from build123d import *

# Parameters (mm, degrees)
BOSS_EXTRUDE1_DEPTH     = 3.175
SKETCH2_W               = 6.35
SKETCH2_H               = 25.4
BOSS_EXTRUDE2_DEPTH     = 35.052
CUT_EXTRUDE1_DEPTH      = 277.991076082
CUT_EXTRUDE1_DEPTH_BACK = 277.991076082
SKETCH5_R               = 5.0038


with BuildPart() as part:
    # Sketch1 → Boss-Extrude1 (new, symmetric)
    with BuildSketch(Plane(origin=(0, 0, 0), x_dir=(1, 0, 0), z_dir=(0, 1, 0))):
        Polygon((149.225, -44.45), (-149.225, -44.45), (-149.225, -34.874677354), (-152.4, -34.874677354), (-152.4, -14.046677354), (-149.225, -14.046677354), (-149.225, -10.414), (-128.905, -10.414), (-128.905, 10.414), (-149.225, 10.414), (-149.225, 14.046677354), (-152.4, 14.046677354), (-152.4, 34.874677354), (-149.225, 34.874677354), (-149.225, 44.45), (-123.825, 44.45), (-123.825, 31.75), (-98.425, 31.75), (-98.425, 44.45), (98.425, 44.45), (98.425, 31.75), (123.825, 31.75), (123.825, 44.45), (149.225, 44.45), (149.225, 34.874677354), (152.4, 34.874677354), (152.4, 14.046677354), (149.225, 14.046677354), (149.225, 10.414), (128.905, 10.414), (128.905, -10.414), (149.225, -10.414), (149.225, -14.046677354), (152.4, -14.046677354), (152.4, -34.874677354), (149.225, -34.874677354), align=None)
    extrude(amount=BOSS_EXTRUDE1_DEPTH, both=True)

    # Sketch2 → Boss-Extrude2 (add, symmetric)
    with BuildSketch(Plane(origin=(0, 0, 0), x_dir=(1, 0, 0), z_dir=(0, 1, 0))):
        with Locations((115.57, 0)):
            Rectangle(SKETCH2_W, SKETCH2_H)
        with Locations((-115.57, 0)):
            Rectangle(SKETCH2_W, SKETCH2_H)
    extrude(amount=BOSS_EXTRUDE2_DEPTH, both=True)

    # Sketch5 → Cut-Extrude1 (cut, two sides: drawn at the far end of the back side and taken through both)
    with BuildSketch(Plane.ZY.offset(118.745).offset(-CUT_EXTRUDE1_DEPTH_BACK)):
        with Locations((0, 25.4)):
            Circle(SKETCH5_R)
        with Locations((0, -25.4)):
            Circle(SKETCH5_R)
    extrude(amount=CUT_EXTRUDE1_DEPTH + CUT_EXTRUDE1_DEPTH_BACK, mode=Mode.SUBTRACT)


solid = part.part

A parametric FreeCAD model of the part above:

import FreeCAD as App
import Part
import Sketcher

V = App.Vector
Q = App.Units.Quantity

doc = App.newDocument("Part")
params = doc.addObject("Spreadsheet::Sheet", "Params")
for row, (alias, value) in enumerate([
    ("sketch1_width", "1 in"),
    ("sketch1_width2", "0.8 in"),
    ("sketch1_height", "0.5 in"),
    ("sketch1_width3", "11.75 in"),
    ("sketch1_height2", "0.82 in"),
    ("pad1_length", "0.25 in"),
    ("sketch2_height", "1 in"),
    ("sketch2_width", "0.25 in"),
    ("pad2_length", "2.76 in"),
    ("sketch3_diameter", "0.394 in"),
], start=1):
    params.set(f"A{row}", alias)
    params.set(f"B{row}", "=" + value)
    params.setAlias(f"B{row}", alias)

body = doc.addObject("PartDesign::Body", "Body")

sketch1 = doc.addObject("Sketcher::SketchObject", "Sketch")
body.addObject(sketch1)
sketch1.AttachmentSupport = (doc.XZ_Plane, [""])
sketch1.MapMode = "FlatFace"
sketch1.addGeometry([
    Part.LineSegment(V(-149.225, 44.45, 0), V(149.225, 44.45, 0)),
    Part.LineSegment(V(149.225, 44.45, 0), V(149.225, 34.874677, 0)),
    Part.LineSegment(V(149.225, 34.874677, 0), V(152.4, 34.874677, 0)),
    Part.LineSegment(V(152.4, 34.874677, 0), V(152.4, 14.046677, 0)),
    Part.LineSegment(V(152.4, 14.046677, 0), V(149.225, 14.046677, 0)),
    Part.LineSegment(V(149.225, 14.046677, 0), V(149.225, 10.414, 0)),
    Part.LineSegment(V(149.225, 10.414, 0), V(128.905, 10.414, 0)),
    Part.LineSegment(V(128.905, 10.414, 0), V(128.905, -10.414, 0)),
    Part.LineSegment(V(128.905, -10.414, 0), V(149.225, -10.414, 0)),
    Part.LineSegment(V(149.225, -10.414, 0), V(149.225, -14.046677, 0)),
    Part.LineSegment(V(149.225, -14.046677, 0), V(152.4, -14.046677, 0)),
    Part.LineSegment(V(152.4, -14.046677, 0), V(152.4, -34.874677, 0)),
    Part.LineSegment(V(152.4, -34.874677, 0), V(149.225, -34.874677, 0)),
    Part.LineSegment(V(149.225, -34.874677, 0), V(149.225, -44.45, 0)),
    Part.LineSegment(V(149.225, -44.45, 0), V(123.825, -44.45, 0)),
    Part.LineSegment(V(123.825, -44.45, 0), V(123.825, -31.75, 0)),
    Part.LineSegment(V(123.825, -31.75, 0), V(98.425, -31.75, 0)),
    Part.LineSegment(V(98.425, -31.75, 0), V(98.425, -44.45, 0)),
    Part.LineSegment(V(98.425, -44.45, 0), V(-98.425, -44.45, 0)),
    Part.LineSegment(V(-98.425, -44.45, 0), V(-98.425, -31.75, 0)),
    Part.LineSegment(V(-98.425, -31.75, 0), V(-123.825, -31.75, 0)),
    Part.LineSegment(V(-123.825, -31.75, 0), V(-123.825, -44.45, 0)),
    Part.LineSegment(V(-123.825, -44.45, 0), V(-149.225, -44.45, 0)),
    Part.LineSegment(V(-149.225, -44.45, 0), V(-149.225, -34.874677, 0)),
    Part.LineSegment(V(-149.225, -34.874677, 0), V(-152.4, -34.874677, 0)),
    Part.LineSegment(V(-152.4, -34.874677, 0), V(-152.4, -14.046677, 0)),
    Part.LineSegment(V(-152.4, -14.046677, 0), V(-149.225, -14.046677, 0)),
    Part.LineSegment(V(-149.225, -14.046677, 0), V(-149.225, -10.414, 0)),
    Part.LineSegment(V(-149.225, -10.414, 0), V(-128.905, -10.414, 0)),
    Part.LineSegment(V(-128.905, -10.414, 0), V(-128.905, 10.414, 0)),
    Part.LineSegment(V(-128.905, 10.414, 0), V(-149.225, 10.414, 0)),
    Part.LineSegment(V(-149.225, 10.414, 0), V(-149.225, 14.046677, 0)),
    Part.LineSegment(V(-149.225, 14.046677, 0), V(-152.4, 14.046677, 0)),
    Part.LineSegment(V(-152.4, 14.046677, 0), V(-152.4, 34.874677, 0)),
    Part.LineSegment(V(-152.4, 34.874677, 0), V(-149.225, 34.874677, 0)),
    Part.LineSegment(V(-149.225, 34.874677, 0), V(-149.225, 44.45, 0)),
], False)
sketch1.addConstraint([
    Sketcher.Constraint("Coincident", 0, 2, 1, 1),
    Sketcher.Constraint("Coincident", 1, 2, 2, 1),
    Sketcher.Constraint("Coincident", 2, 2, 3, 1),
    Sketcher.Constraint("Coincident", 3, 2, 4, 1),
    Sketcher.Constraint("Coincident", 4, 2, 5, 1),
    Sketcher.Constraint("Coincident", 5, 2, 6, 1),
    Sketcher.Constraint("Coincident", 6, 2, 7, 1),
    Sketcher.Constraint("Coincident", 7, 2, 8, 1),
    Sketcher.Constraint("Coincident", 8, 2, 9, 1),
    Sketcher.Constraint("Coincident", 9, 2, 10, 1),
    Sketcher.Constraint("Coincident", 10, 2, 11, 1),
    Sketcher.Constraint("Coincident", 11, 2, 12, 1),
    Sketcher.Constraint("Coincident", 12, 2, 13, 1),
    Sketcher.Constraint("Coincident", 13, 2, 14, 1),
    Sketcher.Constraint("Coincident", 14, 2, 15, 1),
    Sketcher.Constraint("Coincident", 15, 2, 16, 1),
    Sketcher.Constraint("Coincident", 16, 2, 17, 1),
    Sketcher.Constraint("Coincident", 17, 2, 18, 1),
    Sketcher.Constraint("Coincident", 18, 2, 19, 1),
    Sketcher.Constraint("Coincident", 19, 2, 20, 1),
    Sketcher.Constraint("Coincident", 20, 2, 21, 1),
    Sketcher.Constraint("Coincident", 21, 2, 22, 1),
    Sketcher.Constraint("Coincident", 22, 2, 23, 1),
    Sketcher.Constraint("Coincident", 23, 2, 24, 1),
    Sketcher.Constraint("Coincident", 24, 2, 25, 1),
    Sketcher.Constraint("Coincident", 25, 2, 26, 1),
    Sketcher.Constraint("Coincident", 26, 2, 27, 1),
    Sketcher.Constraint("Coincident", 27, 2, 28, 1),
    Sketcher.Constraint("Coincident", 28, 2, 29, 1),
    Sketcher.Constraint("Coincident", 29, 2, 30, 1),
    Sketcher.Constraint("Coincident", 30, 2, 31, 1),
    Sketcher.Constraint("Coincident", 31, 2, 32, 1),
    Sketcher.Constraint("Coincident", 32, 2, 33, 1),
    Sketcher.Constraint("Coincident", 33, 2, 34, 1),
    Sketcher.Constraint("Coincident", 34, 2, 35, 1),
    Sketcher.Constraint("Coincident", 35, 2, 0, 1),
    Sketcher.Constraint("Horizontal", 0),
    Sketcher.Constraint("Vertical", 1),
    Sketcher.Constraint("Horizontal", 2),
    Sketcher.Constraint("Vertical", 3),
    Sketcher.Constraint("Horizontal", 4),
    Sketcher.Constraint("Vertical", 5),
    Sketcher.Constraint("Horizontal", 6),
    Sketcher.Constraint("Vertical", 7),
    Sketcher.Constraint("Horizontal", 8),
    Sketcher.Constraint("Vertical", 9),
    Sketcher.Constraint("Horizontal", 10),
    Sketcher.Constraint("Vertical", 11),
    Sketcher.Constraint("Horizontal", 12),
    Sketcher.Constraint("Vertical", 13),
    Sketcher.Constraint("Horizontal", 14),
    Sketcher.Constraint("Vertical", 15),
    Sketcher.Constraint("Horizontal", 16),
    Sketcher.Constraint("Vertical", 17),
    Sketcher.Constraint("Horizontal", 18),
    Sketcher.Constraint("Vertical", 19),
    Sketcher.Constraint("Horizontal", 20),
    Sketcher.Constraint("Vertical", 21),
    Sketcher.Constraint("Horizontal", 22),
    Sketcher.Constraint("Vertical", 23),
    Sketcher.Constraint("Horizontal", 24),
    Sketcher.Constraint("Vertical", 25),
    Sketcher.Constraint("Horizontal", 26),
    Sketcher.Constraint("Vertical", 27),
    Sketcher.Constraint("Horizontal", 28),
    Sketcher.Constraint("Vertical", 29),
    Sketcher.Constraint("Horizontal", 30),
    Sketcher.Constraint("Vertical", 31),
    Sketcher.Constraint("Horizontal", 32),
    Sketcher.Constraint("Vertical", 33),
    Sketcher.Constraint("Horizontal", 34),
    Sketcher.Constraint("Vertical", 35),
    Sketcher.Constraint("Symmetric", 0, 2, 22, 2, -1, 1),
    Sketcher.Constraint("Symmetric", 2, 2, 24, 2, -1, 1),
    Sketcher.Constraint("Symmetric", 4, 2, 26, 2, -1, 1),
    Sketcher.Constraint("Symmetric", 6, 2, 28, 2, -1, 1),
    Sketcher.Constraint("Symmetric", 8, 2, 30, 2, -1, 1),
    Sketcher.Constraint("Symmetric", 10, 2, 32, 2, -1, 1),
    Sketcher.Constraint("Symmetric", 12, 2, 34, 2, -1, 1),
    Sketcher.Constraint("Symmetric", 16, 2, 19, 2, -2),
    Sketcher.Constraint("Symmetric", 14, 2, 21, 2, -2),
    Sketcher.Constraint("Symmetric", 12, 2, 23, 2, -2),
    Sketcher.Constraint("Symmetric", 10, 2, 25, 2, -2),
    Sketcher.Constraint("Symmetric", 8, 2, 27, 2, -2),
    Sketcher.Constraint("Horizontal", 14, 2, 17, 2),
    Sketcher.Constraint("Vertical", 1, 2, 4, 2),
    Sketcher.Constraint("Equal", 14, 16),
    Sketcher.Constraint("Equal", 3, 7),
    Sketcher.Constraint("DistanceX", 14, 2, 14, 1, Q("1 in")),
    Sketcher.Constraint("DistanceX", 6, 2, 6, 1, Q("0.8 in")),
    Sketcher.Constraint("DistanceY", 15, 1, 15, 2, Q("0.5 in")),
    Sketcher.Constraint("DistanceX", -1, 1, 2, 2, Q("6 in")),
    Sketcher.Constraint("DistanceX", 0, 1, 0, 2, Q("11.75 in")),
    Sketcher.Constraint("DistanceY", 3, 2, 3, 1, Q("0.82 in")),
    Sketcher.Constraint("DistanceY", -1, 1, 0, 2, Q("1.75 in")),
    Sketcher.Constraint("DistanceY", 1, 2, 1, 1, 9.575323),
])
sketch1.setExpression("Constraints[88]", "Params.sketch1_width")
sketch1.setExpression("Constraints[89]", "Params.sketch1_width2")
sketch1.setExpression("Constraints[90]", "Params.sketch1_height")
sketch1.setExpression("Constraints[92]", "Params.sketch1_width3")
sketch1.setExpression("Constraints[93]", "Params.sketch1_height2")
pad1 = doc.addObject("PartDesign::Pad", "Pad")
body.addObject(pad1)
pad1.Profile = sketch1
pad1.setExpression("Length", "Params.pad1_length")
pad1.Midplane = True

sketch2 = doc.addObject("Sketcher::SketchObject", "Sketch001")
body.addObject(sketch2)
sketch2.AttachmentSupport = (doc.XZ_Plane, [""])
sketch2.MapMode = "FlatFace"
sketch2.addGeometry([
    Part.LineSegment(V(112.395, -12.7, 0), V(112.395, 12.7, 0)),
    Part.LineSegment(V(112.395, 12.7, 0), V(118.745, 12.7, 0)),
    Part.LineSegment(V(118.745, 12.7, 0), V(118.745, -12.7, 0)),
    Part.LineSegment(V(118.745, -12.7, 0), V(112.395, -12.7, 0)),
    Part.LineSegment(V(-118.745, -12.7, 0), V(-118.745, 12.7, 0)),
    Part.LineSegment(V(-118.745, 12.7, 0), V(-112.395, 12.7, 0)),
    Part.LineSegment(V(-112.395, 12.7, 0), V(-112.395, -12.7, 0)),
    Part.LineSegment(V(-112.395, -12.7, 0), V(-118.745, -12.7, 0)),
], False)
sketch2.addConstraint([
    Sketcher.Constraint("Coincident", 0, 2, 1, 1),
    Sketcher.Constraint("Coincident", 1, 2, 2, 1),
    Sketcher.Constraint("Coincident", 2, 2, 3, 1),
    Sketcher.Constraint("Coincident", 3, 2, 0, 1),
    Sketcher.Constraint("Coincident", 4, 2, 5, 1),
    Sketcher.Constraint("Coincident", 5, 2, 6, 1),
    Sketcher.Constraint("Coincident", 6, 2, 7, 1),
    Sketcher.Constraint("Coincident", 7, 2, 4, 1),
    Sketcher.Constraint("Vertical", 0),
    Sketcher.Constraint("Horizontal", 1),
    Sketcher.Constraint("Vertical", 2),
    Sketcher.Constraint("Horizontal", 3),
    Sketcher.Constraint("Vertical", 4),
    Sketcher.Constraint("Horizontal", 5),
    Sketcher.Constraint("Vertical", 6),
    Sketcher.Constraint("Horizontal", 7),
    Sketcher.Constraint("Symmetric", 2, 2, 4, 2, -1, 1),
    Sketcher.Constraint("Symmetric", 0, 2, 6, 2, -1, 1),
    Sketcher.Constraint("Horizontal", 1, 2, 4, 2),
    Sketcher.Constraint("DistanceY", 0, 1, 0, 2, Q("1 in")),
    Sketcher.Constraint("DistanceX", 1, 1, 1, 2, Q("0.25 in")),
    Sketcher.Constraint("DistanceX", 4, 2, 0, 2, Q("9.1 in")),
])
sketch2.setExpression("Constraints[19]", "Params.sketch2_height")
sketch2.setExpression("Constraints[20]", "Params.sketch2_width")
pad2 = doc.addObject("PartDesign::Pad", "Pad001")
body.addObject(pad2)
pad2.Profile = sketch2
pad2.setExpression("Length", "Params.pad2_length")
pad2.Midplane = True

sketch3 = doc.addObject("Sketcher::SketchObject", "Sketch002")
body.addObject(sketch3)
sketch3.AttachmentSupport = (doc.YZ_Plane, [""])
sketch3.MapMode = "FlatFace"
sketch3.AttachmentOffset = App.Placement(V(0, 0, -4.675 * 25.4), App.Rotation())
sketch3.addGeometry([
    Part.Circle(V(25.4, 0, 0), V(0, 0, 1), 5.0038),
    Part.Circle(V(-25.4, 0, 0), V(0, 0, 1), 5.0038),
], False)
sketch3.addConstraint([
    Sketcher.Constraint("Equal", 0, 1),
    Sketcher.Constraint("Symmetric", 0, 3, 1, 3, -1, 1),
    Sketcher.Constraint("PointOnObject", 0, 3, -1),
    Sketcher.Constraint("Diameter", 0, Q("0.394 in")),
    Sketcher.Constraint("DistanceX", -1, 1, 0, 3, Q("1 in")),
])
sketch3.setExpression("Constraints[3]", "Params.sketch3_diameter")
pocket1 = doc.addObject("PartDesign::Pocket", "Pocket")
body.addObject(pocket1)
pocket1.Profile = sketch3
pocket1.Type = "ThroughAll"
pocket1.Midplane = True

doc.recompute()
